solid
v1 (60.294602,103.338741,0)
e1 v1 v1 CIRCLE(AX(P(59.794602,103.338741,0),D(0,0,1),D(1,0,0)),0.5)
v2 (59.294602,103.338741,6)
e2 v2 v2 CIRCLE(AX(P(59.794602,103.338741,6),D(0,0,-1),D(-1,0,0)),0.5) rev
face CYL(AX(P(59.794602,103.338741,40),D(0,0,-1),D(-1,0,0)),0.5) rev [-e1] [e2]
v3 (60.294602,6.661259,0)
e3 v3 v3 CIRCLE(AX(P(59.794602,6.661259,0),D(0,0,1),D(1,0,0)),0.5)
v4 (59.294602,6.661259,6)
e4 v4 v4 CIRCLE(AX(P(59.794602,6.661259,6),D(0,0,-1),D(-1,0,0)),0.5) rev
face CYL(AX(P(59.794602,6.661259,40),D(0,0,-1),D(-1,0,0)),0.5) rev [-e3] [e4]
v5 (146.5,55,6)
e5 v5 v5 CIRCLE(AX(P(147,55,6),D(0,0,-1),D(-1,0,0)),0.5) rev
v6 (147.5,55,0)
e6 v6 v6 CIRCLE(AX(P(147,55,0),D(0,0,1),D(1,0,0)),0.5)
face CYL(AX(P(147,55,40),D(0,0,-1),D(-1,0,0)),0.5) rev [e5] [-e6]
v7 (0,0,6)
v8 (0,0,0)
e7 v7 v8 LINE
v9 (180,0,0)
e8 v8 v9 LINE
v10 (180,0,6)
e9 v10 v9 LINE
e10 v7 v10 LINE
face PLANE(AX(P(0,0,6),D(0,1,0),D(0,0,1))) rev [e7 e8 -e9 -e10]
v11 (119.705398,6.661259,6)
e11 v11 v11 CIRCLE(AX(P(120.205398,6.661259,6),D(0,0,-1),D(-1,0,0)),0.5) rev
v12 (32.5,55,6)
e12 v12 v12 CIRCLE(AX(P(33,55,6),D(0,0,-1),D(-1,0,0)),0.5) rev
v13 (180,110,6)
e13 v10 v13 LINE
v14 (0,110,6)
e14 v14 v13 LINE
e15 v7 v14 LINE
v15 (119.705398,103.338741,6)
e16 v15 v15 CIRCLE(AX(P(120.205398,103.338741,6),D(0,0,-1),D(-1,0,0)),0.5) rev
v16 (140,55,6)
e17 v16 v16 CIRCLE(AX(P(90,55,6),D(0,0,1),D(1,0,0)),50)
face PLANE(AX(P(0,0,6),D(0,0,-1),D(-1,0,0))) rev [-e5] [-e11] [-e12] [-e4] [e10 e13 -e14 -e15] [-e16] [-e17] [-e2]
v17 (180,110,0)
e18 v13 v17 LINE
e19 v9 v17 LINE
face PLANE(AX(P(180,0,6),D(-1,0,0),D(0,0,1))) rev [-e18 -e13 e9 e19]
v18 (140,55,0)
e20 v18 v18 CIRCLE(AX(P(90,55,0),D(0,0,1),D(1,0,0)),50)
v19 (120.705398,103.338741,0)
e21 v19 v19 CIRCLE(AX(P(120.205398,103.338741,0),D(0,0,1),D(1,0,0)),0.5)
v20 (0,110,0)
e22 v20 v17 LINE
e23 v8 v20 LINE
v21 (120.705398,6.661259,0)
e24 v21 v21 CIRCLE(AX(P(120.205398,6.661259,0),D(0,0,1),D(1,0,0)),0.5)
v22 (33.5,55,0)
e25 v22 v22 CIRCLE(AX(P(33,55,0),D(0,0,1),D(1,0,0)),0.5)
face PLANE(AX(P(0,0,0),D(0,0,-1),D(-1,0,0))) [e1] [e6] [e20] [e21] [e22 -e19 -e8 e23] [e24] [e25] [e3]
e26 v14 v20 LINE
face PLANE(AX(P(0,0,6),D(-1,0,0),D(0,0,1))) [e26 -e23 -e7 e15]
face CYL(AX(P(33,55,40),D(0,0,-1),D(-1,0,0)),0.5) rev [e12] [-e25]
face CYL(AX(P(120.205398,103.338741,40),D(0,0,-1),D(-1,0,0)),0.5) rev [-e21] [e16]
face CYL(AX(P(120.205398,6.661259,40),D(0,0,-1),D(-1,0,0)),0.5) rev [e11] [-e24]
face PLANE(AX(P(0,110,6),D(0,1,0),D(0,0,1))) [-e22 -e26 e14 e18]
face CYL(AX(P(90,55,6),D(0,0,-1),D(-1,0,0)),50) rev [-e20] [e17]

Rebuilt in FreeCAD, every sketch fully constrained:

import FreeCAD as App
import Part
import Sketcher
Q = App.Units.Quantity


def add_polygon(sketch, points):
    """Adds a closed chain of lines whose ends are joined by coincident constraints."""
    first, n = sketch.GeometryCount, len(points)
    for a, b in zip(points, points[1:] + points[:1]):
        sketch.addGeometry(Part.LineSegment(App.Vector(*a, 0), App.Vector(*b, 0)), False)
    for i in range(n):
        sketch.addConstraint(Sketcher.Constraint("Coincident", first + i, 2, first + (i + 1) % n, 1))

doc = App.newDocument("Part")
body = doc.addObject("PartDesign::Body", "Body")

sketch1 = body.newObject("Sketcher::SketchObject", "Sketch")
sketch1.AttachmentSupport = (doc.getObject("XY_Plane"), [""])
sketch1.MapMode = "FlatFace"
add_polygon(sketch1, [(0, 110), (0, 0), (180, 0), (180, 110)])
sketch1.addConstraint([
    Sketcher.Constraint("Vertical", 0),
    Sketcher.Constraint("Horizontal", 1),
    Sketcher.Constraint("Vertical", 2),
    Sketcher.Constraint("Horizontal", 3),
    Sketcher.Constraint("Coincident", 0, 2, -1, 1),
    Sketcher.Constraint("DistanceX", 1, 1, 1, 2, Q("180 mm")),
    Sketcher.Constraint("DistanceY", 0, 2, 0, 1, Q("110 mm")),
])
pad1 = body.newObject("PartDesign::Pad", "Pad")
pad1.Profile = sketch1
pad1.Length = 6

sketch2 = body.newObject("Sketcher::SketchObject", "Sketch001")
sketch2.AttachmentSupport = (doc.getObject("XY_Plane"), [""])
sketch2.MapMode = "FlatFace"
sketch2.addGeometry(Part.Circle(App.Vector(90, 55, 0), App.Vector(0, 0, 1), 50), False)
sketch2.addConstraint([
    Sketcher.Constraint("Diameter", 0, Q("100 mm")),
    Sketcher.Constraint("DistanceX", -1, 1, 0, 3, Q("90 mm")),
    Sketcher.Constraint("DistanceY", -1, 1, 0, 3, Q("55 mm")),
])
pocket1 = body.newObject("PartDesign::Pocket", "Pocket")
pocket1.Profile = sketch2
pocket1.Length = 6
pocket1.Reversed = True

sketch3 = body.newObject("Sketcher::SketchObject", "Sketch002")
sketch3.AttachmentSupport = (doc.getObject("XY_Plane"), [""])
sketch3.MapMode = "FlatFace"
sketch3.addGeometry([
    Part.Circle(App.Vector(59.8, 103.3, 0), App.Vector(0, 0, 1), 0.5),
    Part.Circle(App.Vector(120.2, 103.3, 0), App.Vector(0, 0, 1), 0.5),
    Part.Circle(App.Vector(147, 55, 0), App.Vector(0, 0, 1), 0.5),
    Part.Circle(App.Vector(120.2, 6.7, 0), App.Vector(0, 0, 1), 0.5),
    Part.Circle(App.Vector(59.8, 6.7, 0), App.Vector(0, 0, 1), 0.5),
    Part.Circle(App.Vector(33, 55, 0), App.Vector(0, 0, 1), 0.5),
], False)
sketch3.addConstraint([
    Sketcher.Constraint("Equal", 0, 1),
    Sketcher.Constraint("Equal", 1, 2),
    Sketcher.Constraint("Equal", 2, 3),
    Sketcher.Constraint("Equal", 3, 4),
    Sketcher.Constraint("Equal", 4, 5),
    Sketcher.Constraint("Horizontal", 0, 3, 1, 3),
    Sketcher.Constraint("Horizontal", 3, 3, 4, 3),
    Sketcher.Constraint("Horizontal", 2, 3, 5, 3),
    Sketcher.Constraint("Vertical", 1, 3, 3, 3),
    Sketcher.Constraint("Vertical", 0, 3, 4, 3),
    Sketcher.Constraint("Diameter", 0, Q("1 mm")),
    Sketcher.Constraint("DistanceX", -1, 1, 2, 3, Q("147 mm")),
    Sketcher.Constraint("DistanceY", -1, 1, 2, 3, Q("55 mm")),
    Sketcher.Constraint("DistanceX", -1, 1, 5, 3, Q("33 mm")),
    Sketcher.Constraint("DistanceX", -1, 1, 0, 3, Q("59.794602 mm")),
    Sketcher.Constraint("DistanceX", -1, 1, 1, 3, Q("120.205398 mm")),
    Sketcher.Constraint("DistanceY", -1, 1, 0, 3, Q("103.338741 mm")),
    Sketcher.Constraint("DistanceY", -1, 1, 3, 3, Q("6.661259 mm")),
])
pocket2 = body.newObject("PartDesign::Pocket", "Pocket001")
pocket2.Profile = sketch3
pocket2.Length = 40
pocket2.Reversed = True

doc.recompute()
